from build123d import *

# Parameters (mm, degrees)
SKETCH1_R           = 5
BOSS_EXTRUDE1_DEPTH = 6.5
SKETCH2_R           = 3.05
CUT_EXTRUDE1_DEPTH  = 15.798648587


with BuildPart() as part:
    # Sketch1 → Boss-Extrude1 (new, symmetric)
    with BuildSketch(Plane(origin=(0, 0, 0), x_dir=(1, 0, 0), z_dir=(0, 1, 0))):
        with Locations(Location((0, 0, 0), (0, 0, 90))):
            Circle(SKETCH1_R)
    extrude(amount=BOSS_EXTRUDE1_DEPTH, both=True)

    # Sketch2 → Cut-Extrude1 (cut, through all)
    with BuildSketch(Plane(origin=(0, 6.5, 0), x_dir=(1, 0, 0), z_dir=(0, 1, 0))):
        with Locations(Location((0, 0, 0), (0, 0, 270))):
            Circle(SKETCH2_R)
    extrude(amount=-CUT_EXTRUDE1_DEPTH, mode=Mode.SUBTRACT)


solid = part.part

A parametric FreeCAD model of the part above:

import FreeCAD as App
import Part
import Sketcher

doc = App.newDocument("Part")
params = doc.addObject("Spreadsheet::Sheet", "Params")
for row, (alias, value) in enumerate([
    ("sketch1_diameter", "10 mm"),
    ("pad1_length", "13 mm"),
    ("sketch2_diameter", "6.1 mm"),
], start=1):
    params.set(f"A{row}", alias)
    params.set(f"B{row}", "=" + value)
    params.setAlias(f"B{row}", alias)

body = doc.addObject("PartDesign::Body", "Body")

# Sketch on XZ plane
sketch1 = body.newObject("Sketcher::SketchObject", "Sketch")
sketch1.AttachmentSupport = (doc.getObject("XZ_Plane"), [""])
sketch1.MapMode = "FlatFace"
sketch1.addGeometry(Part.Circle(App.Vector(0, 0, 0), App.Vector(0, 0, 1), 5), False)
sketch1.addConstraint(Sketcher.Constraint("Coincident", 0, 3, -1, 1))
sketch1.addConstraint(Sketcher.Constraint("Diameter", 0, 10.0))
sketch1.setExpression("Constraints[1]", "Params.sketch1_diameter")
pad1 = body.newObject("PartDesign::Pad", "Pad")
pad1.Profile = sketch1
pad1.setExpression("Length", "Params.pad1_length")
pad1.Midplane = True

# Sketch on XZ plane
sketch2 = body.newObject("Sketcher::SketchObject", "Sketch001")
sketch2.AttachmentSupport = (doc.getObject("XZ_Plane"), [""])
sketch2.MapMode = "FlatFace"
sketch2.AttachmentOffset = App.Placement(App.Vector(0, 0, -6.5), App.Rotation())
sketch2.addGeometry(Part.Circle(App.Vector(0, 0, 0), App.Vector(0, 0, 1), 3.05), False)
sketch2.addConstraint(Sketcher.Constraint("Coincident", 0, 3, -1, 1))
sketch2.addConstraint(Sketcher.Constraint("Diameter", 0, 6.1))
sketch2.setExpression("Constraints[1]", "Params.sketch2_diameter")
pocket1 = body.newObject("PartDesign::Pocket", "Pocket")
pocket1.Profile = sketch2
pocket1.Type = "ThroughAll"
pocket1.Reversed = True

doc.recompute()
